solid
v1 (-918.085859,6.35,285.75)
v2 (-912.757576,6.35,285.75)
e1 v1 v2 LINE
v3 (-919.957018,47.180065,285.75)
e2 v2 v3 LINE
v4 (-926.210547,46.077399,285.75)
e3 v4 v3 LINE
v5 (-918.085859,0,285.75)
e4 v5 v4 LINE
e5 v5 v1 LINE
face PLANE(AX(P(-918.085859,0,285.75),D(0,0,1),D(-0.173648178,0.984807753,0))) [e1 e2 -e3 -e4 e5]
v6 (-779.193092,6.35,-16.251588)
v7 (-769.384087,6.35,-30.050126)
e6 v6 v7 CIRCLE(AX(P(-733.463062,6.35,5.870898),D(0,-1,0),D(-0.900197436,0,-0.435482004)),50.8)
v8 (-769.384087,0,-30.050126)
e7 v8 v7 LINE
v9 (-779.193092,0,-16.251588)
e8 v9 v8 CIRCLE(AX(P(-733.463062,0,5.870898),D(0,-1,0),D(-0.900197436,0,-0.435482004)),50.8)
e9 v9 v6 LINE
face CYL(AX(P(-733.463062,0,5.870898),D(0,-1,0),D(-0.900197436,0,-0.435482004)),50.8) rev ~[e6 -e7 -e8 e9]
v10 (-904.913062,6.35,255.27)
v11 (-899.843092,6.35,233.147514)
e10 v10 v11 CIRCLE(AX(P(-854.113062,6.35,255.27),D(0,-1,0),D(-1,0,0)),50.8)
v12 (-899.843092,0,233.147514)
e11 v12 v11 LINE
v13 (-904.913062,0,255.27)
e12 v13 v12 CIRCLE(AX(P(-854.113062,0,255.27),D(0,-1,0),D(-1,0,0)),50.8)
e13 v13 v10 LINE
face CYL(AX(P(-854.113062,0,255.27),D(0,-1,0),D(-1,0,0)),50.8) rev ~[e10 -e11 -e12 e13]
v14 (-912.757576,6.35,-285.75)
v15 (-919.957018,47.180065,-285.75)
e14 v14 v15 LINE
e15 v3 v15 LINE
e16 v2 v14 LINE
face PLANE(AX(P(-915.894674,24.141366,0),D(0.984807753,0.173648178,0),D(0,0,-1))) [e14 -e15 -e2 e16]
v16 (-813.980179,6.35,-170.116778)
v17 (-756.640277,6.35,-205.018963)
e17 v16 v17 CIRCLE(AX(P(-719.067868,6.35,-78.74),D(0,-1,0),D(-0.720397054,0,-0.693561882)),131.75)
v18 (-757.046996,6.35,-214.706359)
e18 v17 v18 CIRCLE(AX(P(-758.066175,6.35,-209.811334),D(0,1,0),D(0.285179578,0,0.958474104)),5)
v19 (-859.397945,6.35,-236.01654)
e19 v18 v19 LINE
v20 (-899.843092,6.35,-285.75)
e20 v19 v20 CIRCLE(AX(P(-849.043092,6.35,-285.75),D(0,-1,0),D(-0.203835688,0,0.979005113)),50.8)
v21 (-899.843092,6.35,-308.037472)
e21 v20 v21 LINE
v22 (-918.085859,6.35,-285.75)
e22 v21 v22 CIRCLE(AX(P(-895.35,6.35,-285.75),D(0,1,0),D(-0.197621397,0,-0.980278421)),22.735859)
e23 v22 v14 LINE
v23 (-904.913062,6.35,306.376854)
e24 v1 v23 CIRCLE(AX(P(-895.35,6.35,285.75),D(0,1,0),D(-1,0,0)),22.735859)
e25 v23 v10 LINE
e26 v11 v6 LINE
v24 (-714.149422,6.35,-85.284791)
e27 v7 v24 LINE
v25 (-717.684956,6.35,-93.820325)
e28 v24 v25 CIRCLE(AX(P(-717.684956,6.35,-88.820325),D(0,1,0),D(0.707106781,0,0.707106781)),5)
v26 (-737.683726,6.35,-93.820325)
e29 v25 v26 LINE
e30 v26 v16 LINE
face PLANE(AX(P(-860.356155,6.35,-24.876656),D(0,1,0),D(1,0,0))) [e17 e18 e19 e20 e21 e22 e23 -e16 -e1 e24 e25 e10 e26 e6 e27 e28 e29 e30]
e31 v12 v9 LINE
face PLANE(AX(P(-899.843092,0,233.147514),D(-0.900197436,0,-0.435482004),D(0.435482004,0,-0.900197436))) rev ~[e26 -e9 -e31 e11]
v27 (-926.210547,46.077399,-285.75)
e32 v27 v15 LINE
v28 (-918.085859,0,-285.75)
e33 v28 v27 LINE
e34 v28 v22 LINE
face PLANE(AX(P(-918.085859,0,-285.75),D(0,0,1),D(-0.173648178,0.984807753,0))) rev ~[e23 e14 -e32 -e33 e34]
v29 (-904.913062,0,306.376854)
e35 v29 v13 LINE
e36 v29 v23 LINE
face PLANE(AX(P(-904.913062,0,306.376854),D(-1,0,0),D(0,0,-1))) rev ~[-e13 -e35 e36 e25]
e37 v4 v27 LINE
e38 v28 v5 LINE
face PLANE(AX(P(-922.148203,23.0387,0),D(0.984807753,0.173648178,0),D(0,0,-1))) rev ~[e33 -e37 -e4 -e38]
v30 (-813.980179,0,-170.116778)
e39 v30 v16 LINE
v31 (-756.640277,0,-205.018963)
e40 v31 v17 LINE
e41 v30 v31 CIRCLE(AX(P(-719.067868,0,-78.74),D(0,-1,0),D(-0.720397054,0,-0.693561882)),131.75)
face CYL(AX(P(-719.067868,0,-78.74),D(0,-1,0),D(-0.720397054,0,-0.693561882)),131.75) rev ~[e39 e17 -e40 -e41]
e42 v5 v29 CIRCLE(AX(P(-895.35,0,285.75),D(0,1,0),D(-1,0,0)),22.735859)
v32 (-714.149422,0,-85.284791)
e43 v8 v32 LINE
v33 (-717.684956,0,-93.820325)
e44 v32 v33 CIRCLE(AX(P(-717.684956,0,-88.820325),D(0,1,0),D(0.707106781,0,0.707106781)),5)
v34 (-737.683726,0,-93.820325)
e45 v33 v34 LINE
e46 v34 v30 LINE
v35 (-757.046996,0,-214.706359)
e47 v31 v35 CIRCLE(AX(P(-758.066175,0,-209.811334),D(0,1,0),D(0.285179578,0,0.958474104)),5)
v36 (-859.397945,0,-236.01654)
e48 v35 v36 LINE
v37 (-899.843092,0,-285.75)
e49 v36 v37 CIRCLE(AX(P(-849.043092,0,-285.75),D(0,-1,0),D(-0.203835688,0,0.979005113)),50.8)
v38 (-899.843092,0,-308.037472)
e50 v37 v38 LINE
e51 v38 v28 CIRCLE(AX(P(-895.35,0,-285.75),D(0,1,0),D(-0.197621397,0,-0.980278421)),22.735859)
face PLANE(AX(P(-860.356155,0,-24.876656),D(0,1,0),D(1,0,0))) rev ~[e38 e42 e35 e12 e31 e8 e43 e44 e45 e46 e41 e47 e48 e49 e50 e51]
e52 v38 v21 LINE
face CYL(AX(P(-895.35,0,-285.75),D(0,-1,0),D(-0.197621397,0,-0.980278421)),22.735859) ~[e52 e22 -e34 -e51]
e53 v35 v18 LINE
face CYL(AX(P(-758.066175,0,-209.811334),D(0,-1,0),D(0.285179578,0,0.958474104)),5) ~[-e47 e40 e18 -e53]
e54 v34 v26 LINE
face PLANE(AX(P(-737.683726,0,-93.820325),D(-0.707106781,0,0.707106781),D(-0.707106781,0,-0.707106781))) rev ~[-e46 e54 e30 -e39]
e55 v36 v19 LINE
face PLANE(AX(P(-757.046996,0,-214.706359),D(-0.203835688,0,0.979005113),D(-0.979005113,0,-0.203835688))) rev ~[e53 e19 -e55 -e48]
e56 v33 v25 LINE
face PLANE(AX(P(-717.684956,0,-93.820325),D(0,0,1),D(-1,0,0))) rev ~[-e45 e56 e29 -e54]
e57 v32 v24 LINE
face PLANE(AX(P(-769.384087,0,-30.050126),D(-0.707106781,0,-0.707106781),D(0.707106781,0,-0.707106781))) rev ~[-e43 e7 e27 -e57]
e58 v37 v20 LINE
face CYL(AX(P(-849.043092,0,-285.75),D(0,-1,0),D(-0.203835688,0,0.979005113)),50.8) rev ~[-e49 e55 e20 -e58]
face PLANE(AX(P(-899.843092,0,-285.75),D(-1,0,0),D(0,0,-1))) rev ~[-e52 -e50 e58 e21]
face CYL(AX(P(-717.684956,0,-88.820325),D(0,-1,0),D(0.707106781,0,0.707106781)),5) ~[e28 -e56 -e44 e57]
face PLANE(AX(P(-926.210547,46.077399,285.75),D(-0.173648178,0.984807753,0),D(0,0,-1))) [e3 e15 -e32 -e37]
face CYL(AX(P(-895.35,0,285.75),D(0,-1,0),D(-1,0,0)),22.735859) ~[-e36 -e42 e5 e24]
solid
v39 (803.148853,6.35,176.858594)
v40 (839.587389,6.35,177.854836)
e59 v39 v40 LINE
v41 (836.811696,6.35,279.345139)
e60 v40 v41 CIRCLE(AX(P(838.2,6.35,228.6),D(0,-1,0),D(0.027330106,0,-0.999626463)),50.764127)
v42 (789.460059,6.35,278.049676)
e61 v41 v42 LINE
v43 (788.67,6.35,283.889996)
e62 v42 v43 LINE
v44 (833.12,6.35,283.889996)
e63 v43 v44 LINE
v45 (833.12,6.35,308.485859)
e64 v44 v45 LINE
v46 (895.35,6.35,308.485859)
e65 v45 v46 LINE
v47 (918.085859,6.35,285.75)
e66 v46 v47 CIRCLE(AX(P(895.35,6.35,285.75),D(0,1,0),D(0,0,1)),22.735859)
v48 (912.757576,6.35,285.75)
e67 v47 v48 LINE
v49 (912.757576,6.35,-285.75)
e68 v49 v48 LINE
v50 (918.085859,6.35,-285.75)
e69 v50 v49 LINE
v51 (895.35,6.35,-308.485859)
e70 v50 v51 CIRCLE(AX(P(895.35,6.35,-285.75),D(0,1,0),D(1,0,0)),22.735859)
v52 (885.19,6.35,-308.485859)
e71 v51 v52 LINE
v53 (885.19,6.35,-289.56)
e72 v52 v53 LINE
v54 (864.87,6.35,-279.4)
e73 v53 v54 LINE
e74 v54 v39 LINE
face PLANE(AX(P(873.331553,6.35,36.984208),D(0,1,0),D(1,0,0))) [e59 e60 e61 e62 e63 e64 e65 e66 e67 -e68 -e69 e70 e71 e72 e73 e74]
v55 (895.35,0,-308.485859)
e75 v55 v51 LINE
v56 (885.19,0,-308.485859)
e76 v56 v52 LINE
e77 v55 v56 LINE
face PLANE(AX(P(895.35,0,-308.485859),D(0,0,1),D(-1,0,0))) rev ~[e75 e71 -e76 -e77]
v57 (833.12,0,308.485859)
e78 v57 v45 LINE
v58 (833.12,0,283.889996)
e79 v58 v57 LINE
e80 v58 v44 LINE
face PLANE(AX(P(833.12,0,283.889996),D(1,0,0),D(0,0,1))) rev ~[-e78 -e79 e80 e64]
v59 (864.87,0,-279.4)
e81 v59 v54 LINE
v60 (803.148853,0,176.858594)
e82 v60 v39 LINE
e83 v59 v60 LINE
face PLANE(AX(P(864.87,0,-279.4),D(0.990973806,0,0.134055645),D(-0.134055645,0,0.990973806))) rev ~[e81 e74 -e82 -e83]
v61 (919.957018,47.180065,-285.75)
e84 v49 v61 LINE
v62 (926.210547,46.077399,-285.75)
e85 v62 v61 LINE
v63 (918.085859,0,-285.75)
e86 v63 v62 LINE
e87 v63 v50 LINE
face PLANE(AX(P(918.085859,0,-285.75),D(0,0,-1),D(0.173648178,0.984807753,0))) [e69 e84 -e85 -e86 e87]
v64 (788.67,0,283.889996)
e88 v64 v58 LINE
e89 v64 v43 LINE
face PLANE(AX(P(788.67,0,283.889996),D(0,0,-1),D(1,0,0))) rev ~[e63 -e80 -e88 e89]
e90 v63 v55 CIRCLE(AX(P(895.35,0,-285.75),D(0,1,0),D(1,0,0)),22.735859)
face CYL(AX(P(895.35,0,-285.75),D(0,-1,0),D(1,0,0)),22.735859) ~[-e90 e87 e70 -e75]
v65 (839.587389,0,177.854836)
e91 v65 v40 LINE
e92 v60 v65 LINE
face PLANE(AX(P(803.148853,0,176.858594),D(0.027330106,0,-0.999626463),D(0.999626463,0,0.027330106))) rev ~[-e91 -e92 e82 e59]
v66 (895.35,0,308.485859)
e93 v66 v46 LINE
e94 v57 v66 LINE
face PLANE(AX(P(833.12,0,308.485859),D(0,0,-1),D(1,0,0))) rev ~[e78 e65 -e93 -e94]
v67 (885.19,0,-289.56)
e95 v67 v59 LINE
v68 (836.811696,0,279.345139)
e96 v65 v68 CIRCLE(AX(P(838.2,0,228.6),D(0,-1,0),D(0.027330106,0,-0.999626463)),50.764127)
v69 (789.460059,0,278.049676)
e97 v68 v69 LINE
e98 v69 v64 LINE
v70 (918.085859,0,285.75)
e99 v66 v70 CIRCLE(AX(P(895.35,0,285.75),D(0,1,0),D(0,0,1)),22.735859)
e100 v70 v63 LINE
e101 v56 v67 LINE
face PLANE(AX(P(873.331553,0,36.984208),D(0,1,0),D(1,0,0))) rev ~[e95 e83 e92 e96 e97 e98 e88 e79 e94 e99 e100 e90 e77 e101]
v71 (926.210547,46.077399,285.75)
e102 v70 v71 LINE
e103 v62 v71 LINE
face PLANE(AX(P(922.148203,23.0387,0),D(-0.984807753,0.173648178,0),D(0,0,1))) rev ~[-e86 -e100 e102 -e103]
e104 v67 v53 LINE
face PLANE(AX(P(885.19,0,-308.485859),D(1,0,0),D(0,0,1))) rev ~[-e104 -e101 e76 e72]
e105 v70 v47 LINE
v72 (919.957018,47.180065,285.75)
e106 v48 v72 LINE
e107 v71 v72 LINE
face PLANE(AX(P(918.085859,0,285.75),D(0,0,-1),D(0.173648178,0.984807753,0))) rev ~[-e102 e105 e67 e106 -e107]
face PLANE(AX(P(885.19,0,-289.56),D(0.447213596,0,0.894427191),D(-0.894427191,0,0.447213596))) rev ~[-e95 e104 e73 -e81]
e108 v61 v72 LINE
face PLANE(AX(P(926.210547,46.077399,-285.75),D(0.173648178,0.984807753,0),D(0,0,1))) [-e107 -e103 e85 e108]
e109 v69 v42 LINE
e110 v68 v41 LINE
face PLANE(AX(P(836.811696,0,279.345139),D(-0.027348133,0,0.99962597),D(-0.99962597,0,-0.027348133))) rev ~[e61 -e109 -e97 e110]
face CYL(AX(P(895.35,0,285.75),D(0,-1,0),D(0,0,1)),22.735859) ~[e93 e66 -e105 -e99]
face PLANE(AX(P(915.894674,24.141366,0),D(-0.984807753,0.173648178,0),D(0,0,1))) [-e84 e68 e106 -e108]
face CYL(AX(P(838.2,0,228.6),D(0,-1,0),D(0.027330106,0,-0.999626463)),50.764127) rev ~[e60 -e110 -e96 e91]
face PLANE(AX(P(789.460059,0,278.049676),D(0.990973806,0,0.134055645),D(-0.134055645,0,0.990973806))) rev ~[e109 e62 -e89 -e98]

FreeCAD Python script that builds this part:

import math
import FreeCAD as App
import Part
import Sketcher
Q = App.Units.Quantity

doc = App.newDocument("Part")
body = doc.addObject("PartDesign::Body", "Body")

sketch1 = body.newObject("Sketcher::SketchObject", "Sketch")
sketch1.AttachmentSupport = (doc.getObject("XZ_Plane"), [""])
sketch1.MapMode = "FlatFace"
sketch1.addGeometry([
    Part.LineSegment(App.Vector(918.085859, 285.75, 0), App.Vector(918.085859, -285.75, 0)),
    Part.ArcOfCircle(Part.Circle(App.Vector(895.35, -285.75, 0), App.Vector(0, 0, 1), 22.735859), math.radians(-90), math.radians(0)),
    Part.LineSegment(App.Vector(895.35, -308.485859, 0), App.Vector(885.19, -308.485859, 0)),
    Part.LineSegment(App.Vector(885.19, -308.485859, 0), App.Vector(885.19, -289.56, 0)),
    Part.LineSegment(App.Vector(885.19, -289.56, 0), App.Vector(864.87, -279.4, 0)),
    Part.LineSegment(App.Vector(864.87, -279.4, 0), App.Vector(803.148853, 176.858594, 0)),
    Part.LineSegment(App.Vector(803.148853, 176.858594, 0), App.Vector(839.587389, 177.854836, 0)),
    Part.ArcOfCircle(Part.Circle(App.Vector(838.2, 228.6, 0), App.Vector(0, 0, 1), 50.764127), math.radians(-88.433905), math.radians(91.567128)),
    Part.LineSegment(App.Vector(836.811696, 279.345139, 0), App.Vector(789.460059, 278.049676, 0)),
    Part.LineSegment(App.Vector(789.460059, 278.049676, 0), App.Vector(788.67, 283.889996, 0)),
    Part.LineSegment(App.Vector(788.67, 283.889996, 0), App.Vector(833.12, 283.889996, 0)),
    Part.LineSegment(App.Vector(833.12, 283.889996, 0), App.Vector(833.12, 308.485859, 0)),
    Part.LineSegment(App.Vector(833.12, 308.485859, 0), App.Vector(895.35, 308.485859, 0)),
    Part.ArcOfCircle(Part.Circle(App.Vector(895.35, 285.75, 0), App.Vector(0, 0, 1), 22.735859), math.radians(0), math.radians(90)),
], False)
sketch1.addConstraint([
    Sketcher.Constraint("Coincident", 0, 2, 1, 2),
    Sketcher.Constraint("Coincident", 1, 1, 2, 1),
    Sketcher.Constraint("Coincident", 2, 2, 3, 1),
    Sketcher.Constraint("Coincident", 3, 2, 4, 1),
    Sketcher.Constraint("Coincident", 4, 2, 5, 1),
    Sketcher.Constraint("Coincident", 5, 2, 6, 1),
    Sketcher.Constraint("Coincident", 6, 2, 7, 1),
    Sketcher.Constraint("Coincident", 7, 2, 8, 1),
    Sketcher.Constraint("Coincident", 8, 2, 9, 1),
    Sketcher.Constraint("Coincident", 9, 2, 10, 1),
    Sketcher.Constraint("Coincident", 10, 2, 11, 1),
    Sketcher.Constraint("Coincident", 11, 2, 12, 1),
    Sketcher.Constraint("Coincident", 12, 2, 13, 2),
    Sketcher.Constraint("Coincident", 13, 1, 0, 1),
    Sketcher.Constraint("Vertical", 0),
    Sketcher.Constraint("Horizontal", 2),
    Sketcher.Constraint("Vertical", 3),
    Sketcher.Constraint("Horizontal", 10),
    Sketcher.Constraint("Vertical", 11),
    Sketcher.Constraint("Horizontal", 12),
    Sketcher.Constraint("DistanceX", 2, 2, 2, 1, Q("0.4 in")),
    Sketcher.Constraint("DistanceY", 0, 2, 0, 1, Q("22.5 in")),
    Sketcher.Constraint("DistanceX", -1, 1, 7, 3, Q("33 in")),
    Sketcher.Constraint("DistanceY", -1, 1, 7, 3, Q("9 in")),
    Sketcher.Constraint("DistanceY", 4, 2, -1, 1, Q("11 in")),
    Sketcher.Constraint("DistanceX", 10, 1, 10, 2, Q("1.75 in")),
    Sketcher.Constraint("DistanceX", 12, 1, 12, 2, Q("2.45 in")),
    Sketcher.Constraint("DistanceY", 3, 2, -1, 1, Q("11.4 in")),
    Sketcher.Constraint("DistanceX", -1, 1, 10, 2, Q("32.8 in")),
    Sketcher.Constraint("DistanceY", 1, 3, 13, 3, Q("22.5 in")),
    Sketcher.Constraint("DistanceY", 0, 2, 13, 3, Q("22.5 in")),
    Sketcher.Constraint("DistanceX", 2, 2, 1, 3, Q("0.4 in")),
    Sketcher.Constraint("DistanceX", 2, 2, 13, 3, Q("0.4 in")),
    Sketcher.Constraint("DistanceX", 4, 2, 3, 2, Q("0.8 in")),
    Sketcher.Constraint("DistanceX", 9, 2, 13, 3, Q("4.2 in")),
    Sketcher.Constraint("DistanceY", 1, 3, -1, 1, Q("11.25 in")),
    Sketcher.Constraint("Radius", 1, 22.735859),
    Sketcher.Constraint("Radius", 7, 50.764127),
    Sketcher.Constraint("DistanceY", 5, 2, 9, 2, 107.031402),
    Sketcher.Constraint("DistanceY", 11, 1, 11, 2, 24.595863),
    Sketcher.Constraint("DistanceX", -1, 1, 6, 2, 839.587389),
    Sketcher.Constraint("DistanceY", -1, 1, 7, 2, 279.345139),
    Sketcher.Constraint("DistanceX", -1, 1, 8, 2, 789.460059),
    Sketcher.Constraint("DistanceY", 5, 2, 8, 2, 101.191081),
    Sketcher.Constraint("Distance", 5, 460.414384),
])
pad1 = body.newObject("PartDesign::Pad", "Pad")
pad1.Profile = sketch1
pad1.Length = Q("0.25 in")
pad1.Reversed = True

sketch2 = body.newObject("Sketcher::SketchObject", "Sketch001")
sketch2.Placement = App.Placement(App.Vector(890.402183, -157.001928, 0), App.Rotation(App.Vector(0, 0, 1), App.Vector(0.173648178, 0.984807753, 0), App.Vector(-0.984807753, 0.173648178, 0), "ZXY"))
sketch2.addGeometry([
    Part.LineSegment(App.Vector(-286, 206, 0), App.Vector(-286, 159, 0)),
    Part.LineSegment(App.Vector(-286, 159, 0), App.Vector(286, 159, 0)),
    Part.LineSegment(App.Vector(286, 159, 0), App.Vector(286, 206, 0)),
    Part.LineSegment(App.Vector(286, 206, 0), App.Vector(-286, 206, 0)),
], False)
sketch2.addConstraint([
    Sketcher.Constraint("Coincident", 0, 2, 1, 1),
    Sketcher.Constraint("Coincident", 1, 2, 2, 1),
    Sketcher.Constraint("Coincident", 2, 2, 3, 1),
    Sketcher.Constraint("Coincident", 3, 2, 0, 1),
    Sketcher.Constraint("Vertical", 0),
    Sketcher.Constraint("Horizontal", 1),
    Sketcher.Constraint("Vertical", 2),
    Sketcher.Constraint("Horizontal", 3),
    Sketcher.Constraint("DistanceX", 1, 1, 1, 2, Q("22.5 in")),
    Sketcher.Constraint("DistanceX", 0, 2, -1, 1, Q("11.25 in")),
    Sketcher.Constraint("DistanceY", 0, 2, 0, 1, 46.788217),
    Sketcher.Constraint("DistanceY", -1, 1, 0, 2, 159.423936),
])
pad2 = body.newObject("PartDesign::Pad", "Pad001")
pad2.Profile = sketch2
pad2.Length = Q("0.25 in")
body2 = doc.addObject("PartDesign::Body", "Body001")

sketch3 = body2.newObject("Sketcher::SketchObject", "Sketch002")
sketch3.AttachmentSupport = (doc.getObject("XZ_Plane001"), [""])
sketch3.MapMode = "FlatFace"
sketch3.addGeometry([
    Part.LineSegment(App.Vector(-918, -286, 0), App.Vector(-918, 286, 0)),
    Part.ArcOfCircle(Part.Circle(App.Vector(-895, 286, 0), App.Vector(0, 0, 1), 23), math.radians(115), math.radians(180)),
    Part.LineSegment(App.Vector(-905, 306, 0), App.Vector(-905, 255, 0)),
    Part.ArcOfCircle(Part.Circle(App.Vector(-854, 255, 0), App.Vector(0, 0, 1), 51), math.radians(-180), math.radians(-154)),
    Part.LineSegment(App.Vector(-900, 233, 0), App.Vector(-779, -16, 0)),
    Part.ArcOfCircle(Part.Circle(App.Vector(-733, 6, 0), App.Vector(0, 0, 1), 51), math.radians(-154.18), math.radians(-135)),
    Part.LineSegment(App.Vector(-769, -30, 0), App.Vector(-714, -85, 0)),
    Part.ArcOfCircle(Part.Circle(App.Vector(-718, -89, 0), App.Vector(0, 0, 1), 5), math.radians(-90), math.radians(45)),
    Part.LineSegment(App.Vector(-718, -94, 0), App.Vector(-738, -94, 0)),
    Part.LineSegment(App.Vector(-738, -94, 0), App.Vector(-814, -170, 0)),
    Part.ArcOfCircle(Part.Circle(App.Vector(-719, -79, 0), App.Vector(0, 0, 1), 132), math.radians(-136), math.radians(-107)),
    Part.ArcOfCircle(Part.Circle(App.Vector(-758, -210, 0), App.Vector(0, 0, 1), 5), math.radians(-78), math.radians(73)),
    Part.LineSegment(App.Vector(-757, -215, 0), App.Vector(-859, -236, 0)),
    Part.ArcOfCircle(Part.Circle(App.Vector(-849, -286, 0), App.Vector(0, 0, 1), 51), math.radians(102), math.radians(180)),
    Part.LineSegment(App.Vector(-900, -286, 0), App.Vector(-900, -308, 0)),
    Part.ArcOfCircle(Part.Circle(App.Vector(-895, -286, 0), App.Vector(0, 0, 1), 23), math.radians(180), math.radians(259)),
], False)
sketch3.addConstraint([
    Sketcher.Constraint("Tangent", 0, 2, 1, 2),
    Sketcher.Constraint("Coincident", 1, 1, 2, 1),
    Sketcher.Constraint("Tangent", 2, 2, 3, 1),
    Sketcher.Constraint("Tangent", 3, 2, 4, 1),
    Sketcher.Constraint("Tangent", 4, 2, 5, 1),
    Sketcher.Constraint("Tangent", 5, 2, 6, 1),
    Sketcher.Constraint("Tangent", 6, 2, 7, 2),
    Sketcher.Constraint("Tangent", 7, 1, 8, 1),
    Sketcher.Constraint("Coincident", 8, 2, 9, 1),
    Sketcher.Constraint("Coincident", 9, 2, 10, 1),
    Sketcher.Constraint("Tangent", 10, 2, 11, 2),
    Sketcher.Constraint("Tangent", 11, 1, 12, 1),
    Sketcher.Constraint("Tangent", 12, 2, 13, 1),
    Sketcher.Constraint("Tangent", 13, 2, 14, 1),
    Sketcher.Constraint("Coincident", 14, 2, 15, 2),
    Sketcher.Constraint("Tangent", 15, 1, 0, 1),
    Sketcher.Constraint("Vertical", 0),
    Sketcher.Constraint("Vertical", 2),
    Sketcher.Constraint("Horizontal", 8),
    Sketcher.Constraint("Vertical", 14),
    Sketcher.Constraint("Equal", 3, 5),
    Sketcher.Constraint("Equal", 7, 11),
    Sketcher.Constraint("Equal", 5, 13),
    Sketcher.Constraint("Equal", 1, 15),
    Sketcher.Constraint("Perpendicular", 6, 9),
    Sketcher.Constraint("Horizontal", 13, 3, 15, 3),
    Sketcher.Constraint("Vertical", 3, 2, 13, 2),
    Sketcher.Constraint("Radius", 3, Q("2 in")),
    Sketcher.Constraint("DistanceY", 0, 1, 0, 2, Q("22.5 in")),
    Sketcher.Constraint("Angle", 6, Q("-45 deg")),
    Sketcher.Constraint("DistanceY", 10, 3, -1, 1, Q("3.1 in")),
    Sketcher.Constraint("DistanceY", 3, 3, 1, 3, Q("1.2 in")),
    Sketcher.Constraint("DistanceX", 1, 3, -1, 1, Q("35.25 in")),
    Sketcher.Constraint("DistanceY", -1, 1, 1, 3, Q("11.25 in")),
    Sketcher.Constraint("Radius", 7, 5.0),
    Sketcher.Constraint("Radius", 10, 131.75),
    Sketcher.Constraint("DistanceX", 3, 3, 5, 3, Q("4.75 in")),
    Sketcher.Constraint("DistanceX", 11, 1, -1, 1, Q("29.8049999 in")),
    Sketcher.Constraint("Radius", 1, 22.735859),
    Sketcher.Constraint("DistanceX", 8, 2, 8, 1, 19.99877),
    Sketcher.Constraint("DistanceY", 14, 2, 14, 1, 22.287472),
    Sketcher.Constraint("DistanceY", -1, 1, 5, 3, 5.870898),
    Sketcher.Constraint("DistanceY", 7, 3, 5, 2, 58.770199),
    Sketcher.Constraint("Distance", 9, 107.899479),
])
pad3 = body2.newObject("PartDesign::Pad", "Pad002")
pad3.Profile = sketch3
pad3.Length = Q("0.25 in")
pad3.Reversed = True

sketch4 = body2.newObject("Sketcher::SketchObject", "Sketch003")
sketch4.Placement = App.Placement(App.Vector(-890.402183, -157.001928, 0), App.Rotation(App.Vector(0, 0, -1), App.Vector(-0.173648178, 0.984807753, 0), App.Vector(0.984807753, 0.173648178, 0), "ZXY"))
sketch4.addGeometry([
    Part.LineSegment(App.Vector(-286, 206, 0), App.Vector(-286, 159, 0)),
    Part.LineSegment(App.Vector(-286, 159, 0), App.Vector(286, 159, 0)),
    Part.LineSegment(App.Vector(286, 159, 0), App.Vector(286, 206, 0)),
    Part.LineSegment(App.Vector(286, 206, 0), App.Vector(-286, 206, 0)),
], False)
sketch4.addConstraint([
    Sketcher.Constraint("Coincident", 0, 2, 1, 1),
    Sketcher.Constraint("Coincident", 1, 2, 2, 1),
    Sketcher.Constraint("Coincident", 2, 2, 3, 1),
    Sketcher.Constraint("Coincident", 3, 2, 0, 1),
    Sketcher.Constraint("Vertical", 0),
    Sketcher.Constraint("Horizontal", 1),
    Sketcher.Constraint("Vertical", 2),
    Sketcher.Constraint("Horizontal", 3),
    Sketcher.Constraint("DistanceX", 1, 1, 1, 2, Q("22.5 in")),
    Sketcher.Constraint("DistanceX", 0, 2, -1, 1, Q("11.25 in")),
    Sketcher.Constraint("DistanceY", 0, 2, 0, 1, 46.788217),
    Sketcher.Constraint("DistanceY", -1, 1, 0, 2, 159.423936),
])
pad4 = body2.newObject("PartDesign::Pad", "Pad003")
pad4.Profile = sketch4
pad4.Length = Q("0.25 in")

doc.recompute()
